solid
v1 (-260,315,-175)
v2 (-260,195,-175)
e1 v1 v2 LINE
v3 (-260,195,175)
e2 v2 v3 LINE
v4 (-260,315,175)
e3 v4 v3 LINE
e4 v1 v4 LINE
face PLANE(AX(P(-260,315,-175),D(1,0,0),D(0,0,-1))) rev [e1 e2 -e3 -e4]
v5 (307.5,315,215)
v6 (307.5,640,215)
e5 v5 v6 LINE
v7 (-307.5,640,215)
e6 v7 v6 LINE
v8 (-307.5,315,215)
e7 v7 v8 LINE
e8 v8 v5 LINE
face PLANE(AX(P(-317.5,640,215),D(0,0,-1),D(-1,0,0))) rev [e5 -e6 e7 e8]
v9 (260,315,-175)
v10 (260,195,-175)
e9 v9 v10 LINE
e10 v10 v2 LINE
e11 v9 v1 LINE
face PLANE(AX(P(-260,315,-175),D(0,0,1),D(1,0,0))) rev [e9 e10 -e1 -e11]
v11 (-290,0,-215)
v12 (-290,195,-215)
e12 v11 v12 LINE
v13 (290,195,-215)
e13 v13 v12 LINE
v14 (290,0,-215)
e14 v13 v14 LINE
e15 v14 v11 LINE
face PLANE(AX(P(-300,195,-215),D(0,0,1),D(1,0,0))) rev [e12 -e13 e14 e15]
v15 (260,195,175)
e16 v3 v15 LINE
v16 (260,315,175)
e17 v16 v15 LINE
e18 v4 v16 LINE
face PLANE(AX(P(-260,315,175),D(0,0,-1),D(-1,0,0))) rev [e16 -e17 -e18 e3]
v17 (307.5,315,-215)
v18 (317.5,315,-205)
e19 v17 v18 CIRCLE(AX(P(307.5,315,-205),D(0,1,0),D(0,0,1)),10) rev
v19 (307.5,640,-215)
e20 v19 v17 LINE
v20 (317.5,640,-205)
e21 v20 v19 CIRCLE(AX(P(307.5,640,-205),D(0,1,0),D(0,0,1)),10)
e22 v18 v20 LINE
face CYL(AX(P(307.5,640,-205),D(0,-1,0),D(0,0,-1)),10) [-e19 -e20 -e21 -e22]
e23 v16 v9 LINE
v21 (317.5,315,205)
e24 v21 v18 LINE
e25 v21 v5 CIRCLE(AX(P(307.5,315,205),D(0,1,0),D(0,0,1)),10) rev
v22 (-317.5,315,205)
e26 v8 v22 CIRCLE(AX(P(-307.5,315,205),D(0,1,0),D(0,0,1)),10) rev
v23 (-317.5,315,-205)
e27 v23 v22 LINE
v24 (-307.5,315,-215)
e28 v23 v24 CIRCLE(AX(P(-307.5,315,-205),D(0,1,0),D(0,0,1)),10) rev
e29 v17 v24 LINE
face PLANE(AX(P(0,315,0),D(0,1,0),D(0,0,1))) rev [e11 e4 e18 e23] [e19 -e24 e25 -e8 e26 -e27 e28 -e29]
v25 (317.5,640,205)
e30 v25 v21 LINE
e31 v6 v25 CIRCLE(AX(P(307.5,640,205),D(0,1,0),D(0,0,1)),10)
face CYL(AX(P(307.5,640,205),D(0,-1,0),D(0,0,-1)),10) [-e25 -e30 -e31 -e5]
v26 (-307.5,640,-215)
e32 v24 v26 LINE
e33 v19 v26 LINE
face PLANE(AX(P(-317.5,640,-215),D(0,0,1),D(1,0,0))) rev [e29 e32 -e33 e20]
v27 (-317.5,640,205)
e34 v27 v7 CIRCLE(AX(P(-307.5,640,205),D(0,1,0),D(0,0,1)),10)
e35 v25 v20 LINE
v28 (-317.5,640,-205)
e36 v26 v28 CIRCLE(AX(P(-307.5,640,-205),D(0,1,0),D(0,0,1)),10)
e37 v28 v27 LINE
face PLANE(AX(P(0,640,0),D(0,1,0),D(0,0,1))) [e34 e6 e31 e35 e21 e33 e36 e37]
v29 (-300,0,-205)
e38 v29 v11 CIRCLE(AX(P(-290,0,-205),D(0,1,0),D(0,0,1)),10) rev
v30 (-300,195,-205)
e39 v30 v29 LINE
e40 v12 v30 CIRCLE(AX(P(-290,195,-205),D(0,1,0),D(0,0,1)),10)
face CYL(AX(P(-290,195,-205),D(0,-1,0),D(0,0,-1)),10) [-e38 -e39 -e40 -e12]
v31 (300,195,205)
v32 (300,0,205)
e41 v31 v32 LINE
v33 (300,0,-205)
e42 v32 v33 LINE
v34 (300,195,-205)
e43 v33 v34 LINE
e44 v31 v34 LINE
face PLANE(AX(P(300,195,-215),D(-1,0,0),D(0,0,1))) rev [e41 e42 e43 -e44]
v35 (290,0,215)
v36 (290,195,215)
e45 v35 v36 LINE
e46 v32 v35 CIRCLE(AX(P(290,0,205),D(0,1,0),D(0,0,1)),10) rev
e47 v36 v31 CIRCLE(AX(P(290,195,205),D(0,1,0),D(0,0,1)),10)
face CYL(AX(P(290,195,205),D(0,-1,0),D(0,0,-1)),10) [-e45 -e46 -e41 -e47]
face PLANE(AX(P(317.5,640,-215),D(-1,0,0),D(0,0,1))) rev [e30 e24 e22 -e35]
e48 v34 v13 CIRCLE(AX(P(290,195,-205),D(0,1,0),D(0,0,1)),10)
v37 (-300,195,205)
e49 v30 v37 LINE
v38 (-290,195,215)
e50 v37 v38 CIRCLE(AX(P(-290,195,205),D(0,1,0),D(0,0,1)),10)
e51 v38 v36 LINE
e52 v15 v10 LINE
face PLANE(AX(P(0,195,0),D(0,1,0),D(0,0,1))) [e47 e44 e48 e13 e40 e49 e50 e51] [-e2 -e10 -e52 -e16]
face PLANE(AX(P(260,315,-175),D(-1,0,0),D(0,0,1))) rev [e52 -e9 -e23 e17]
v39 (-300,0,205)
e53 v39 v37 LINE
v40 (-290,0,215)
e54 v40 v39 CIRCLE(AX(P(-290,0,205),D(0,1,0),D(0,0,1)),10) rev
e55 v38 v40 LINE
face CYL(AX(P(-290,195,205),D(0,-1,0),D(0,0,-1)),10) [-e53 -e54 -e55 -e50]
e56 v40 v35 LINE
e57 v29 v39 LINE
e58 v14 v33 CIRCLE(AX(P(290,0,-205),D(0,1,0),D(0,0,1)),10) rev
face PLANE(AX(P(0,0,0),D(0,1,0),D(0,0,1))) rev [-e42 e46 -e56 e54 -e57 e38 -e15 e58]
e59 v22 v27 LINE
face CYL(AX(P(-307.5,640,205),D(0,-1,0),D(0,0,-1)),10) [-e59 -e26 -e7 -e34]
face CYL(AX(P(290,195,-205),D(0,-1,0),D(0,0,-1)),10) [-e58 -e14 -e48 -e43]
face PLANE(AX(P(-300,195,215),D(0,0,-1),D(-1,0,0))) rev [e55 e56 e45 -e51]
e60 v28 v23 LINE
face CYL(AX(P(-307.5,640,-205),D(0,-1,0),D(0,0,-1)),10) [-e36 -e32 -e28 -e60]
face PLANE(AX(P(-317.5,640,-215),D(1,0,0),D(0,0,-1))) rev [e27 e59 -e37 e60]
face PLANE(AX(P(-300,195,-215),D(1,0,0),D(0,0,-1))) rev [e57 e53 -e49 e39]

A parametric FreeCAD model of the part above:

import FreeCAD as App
import Part
import Sketcher
Q = App.Units.Quantity


def edges_at(feature, points):
    """Names of the edges that pass closest to the given points."""
    edges = feature.Shape.Edges
    near = lambda p: min(range(len(edges)), key=lambda i: edges[i].distToShape(Part.Vertex(*p))[0])
    return sorted({f"Edge{near(p) + 1}" for p in points})

doc = App.newDocument("Part")
body = doc.addObject("PartDesign::Body", "Body")

sketch1 = body.newObject("Sketcher::SketchObject", "Sketch")
sketch1.AttachmentSupport = (doc.getObject("XZ_Plane"), [""])
sketch1.MapMode = "FlatFace"
sketch1.addGeometry([
    Part.LineSegment(App.Vector(-300, -215, 0), App.Vector(-300, 215, 0)),
    Part.LineSegment(App.Vector(-300, 215, 0), App.Vector(300, 215, 0)),
    Part.LineSegment(App.Vector(300, 215, 0), App.Vector(300, -215, 0)),
    Part.LineSegment(App.Vector(300, -215, 0), App.Vector(-300, -215, 0)),
], False)
sketch1.addConstraint([
    Sketcher.Constraint("Coincident", 0, 2, 1, 1),
    Sketcher.Constraint("Coincident", 1, 2, 2, 1),
    Sketcher.Constraint("Coincident", 2, 2, 3, 1),
    Sketcher.Constraint("Coincident", 3, 2, 0, 1),
    Sketcher.Constraint("Vertical", 0),
    Sketcher.Constraint("Horizontal", 1),
    Sketcher.Constraint("Vertical", 2),
    Sketcher.Constraint("Horizontal", 3),
    Sketcher.Constraint("Symmetric", 0, 2, 2, 2, -1, 1),
    Sketcher.Constraint("DistanceX", 1, 1, 1, 2, Q("600 mm")),
    Sketcher.Constraint("DistanceY", 0, 1, 0, 2, Q("430 mm")),
])
pad1 = body.newObject("PartDesign::Pad", "Pad")
pad1.Profile = sketch1
pad1.Length = 195
pad1.Reversed = True

sketch2 = body.newObject("Sketcher::SketchObject", "Sketch001")
sketch2.AttachmentSupport = (doc.getObject("XZ_Plane"), [""])
sketch2.MapMode = "FlatFace"
sketch2.AttachmentOffset = App.Placement(App.Vector(0, 0, -195), App.Rotation())
sketch2.addGeometry([
    Part.LineSegment(App.Vector(-260, -175, 0), App.Vector(-260, 175, 0)),
    Part.LineSegment(App.Vector(-260, 175, 0), App.Vector(260, 175, 0)),
    Part.LineSegment(App.Vector(260, 175, 0), App.Vector(260, -175, 0)),
    Part.LineSegment(App.Vector(260, -175, 0), App.Vector(-260, -175, 0)),
], False)
sketch2.addConstraint([
    Sketcher.Constraint("Coincident", 0, 2, 1, 1),
    Sketcher.Constraint("Coincident", 1, 2, 2, 1),
    Sketcher.Constraint("Coincident", 2, 2, 3, 1),
    Sketcher.Constraint("Coincident", 3, 2, 0, 1),
    Sketcher.Constraint("Vertical", 0),
    Sketcher.Constraint("Horizontal", 1),
    Sketcher.Constraint("Vertical", 2),
    Sketcher.Constraint("Horizontal", 3),
    Sketcher.Constraint("Symmetric", 0, 2, 2, 2, -1, 1),
    Sketcher.Constraint("DistanceX", 1, 1, 1, 2, Q("520 mm")),
    Sketcher.Constraint("DistanceY", 0, 1, 0, 2, Q("350 mm")),
])
pad2 = body.newObject("PartDesign::Pad", "Pad001")
pad2.Profile = sketch2
pad2.Length = 120
pad2.Reversed = True

sketch3 = body.newObject("Sketcher::SketchObject", "Sketch002")
sketch3.AttachmentSupport = (doc.getObject("XZ_Plane"), [""])
sketch3.MapMode = "FlatFace"
sketch3.AttachmentOffset = App.Placement(App.Vector(0, 0, -315), App.Rotation())
sketch3.addGeometry([
    Part.LineSegment(App.Vector(-318, -215, 0), App.Vector(-318, 215, 0)),
    Part.LineSegment(App.Vector(-318, 215, 0), App.Vector(318, 215, 0)),
    Part.LineSegment(App.Vector(318, 215, 0), App.Vector(318, -215, 0)),
    Part.LineSegment(App.Vector(318, -215, 0), App.Vector(-318, -215, 0)),
], False)
sketch3.addConstraint([
    Sketcher.Constraint("Coincident", 0, 2, 1, 1),
    Sketcher.Constraint("Coincident", 1, 2, 2, 1),
    Sketcher.Constraint("Coincident", 2, 2, 3, 1),
    Sketcher.Constraint("Coincident", 3, 2, 0, 1),
    Sketcher.Constraint("Vertical", 0),
    Sketcher.Constraint("Horizontal", 1),
    Sketcher.Constraint("Vertical", 2),
    Sketcher.Constraint("Horizontal", 3),
    Sketcher.Constraint("Symmetric", 0, 2, 2, 2, -1, 1),
    Sketcher.Constraint("DistanceX", 1, 1, 1, 2, Q("635 mm")),
    Sketcher.Constraint("DistanceY", 0, 1, 0, 2, Q("430 mm")),
])
pad3 = body.newObject("PartDesign::Pad", "Pad002")
pad3.Profile = sketch3
pad3.Length = 325
pad3.Reversed = True
doc.recompute()

fillet = body.newObject("PartDesign::Fillet", "Fillet")
fillet.Base = (pad3, edges_at(pad3, [
    (317.5, 477.5, 215),
    (317.5, 477.5, -215),
    (-317.5, 477.5, -215),
    (-317.5, 477.5, 215),
]))
fillet.Radius = 10
doc.recompute()

fillet2 = body.newObject("PartDesign::Fillet", "Fillet001")
fillet2.Base = (fillet, edges_at(fillet, [
    (300, 97.5, 215),
    (-300, 97.5, 215),
    (-300, 97.5, -215),
    (300, 97.5, -215),
]))
fillet2.Radius = 10

doc.recompute()
